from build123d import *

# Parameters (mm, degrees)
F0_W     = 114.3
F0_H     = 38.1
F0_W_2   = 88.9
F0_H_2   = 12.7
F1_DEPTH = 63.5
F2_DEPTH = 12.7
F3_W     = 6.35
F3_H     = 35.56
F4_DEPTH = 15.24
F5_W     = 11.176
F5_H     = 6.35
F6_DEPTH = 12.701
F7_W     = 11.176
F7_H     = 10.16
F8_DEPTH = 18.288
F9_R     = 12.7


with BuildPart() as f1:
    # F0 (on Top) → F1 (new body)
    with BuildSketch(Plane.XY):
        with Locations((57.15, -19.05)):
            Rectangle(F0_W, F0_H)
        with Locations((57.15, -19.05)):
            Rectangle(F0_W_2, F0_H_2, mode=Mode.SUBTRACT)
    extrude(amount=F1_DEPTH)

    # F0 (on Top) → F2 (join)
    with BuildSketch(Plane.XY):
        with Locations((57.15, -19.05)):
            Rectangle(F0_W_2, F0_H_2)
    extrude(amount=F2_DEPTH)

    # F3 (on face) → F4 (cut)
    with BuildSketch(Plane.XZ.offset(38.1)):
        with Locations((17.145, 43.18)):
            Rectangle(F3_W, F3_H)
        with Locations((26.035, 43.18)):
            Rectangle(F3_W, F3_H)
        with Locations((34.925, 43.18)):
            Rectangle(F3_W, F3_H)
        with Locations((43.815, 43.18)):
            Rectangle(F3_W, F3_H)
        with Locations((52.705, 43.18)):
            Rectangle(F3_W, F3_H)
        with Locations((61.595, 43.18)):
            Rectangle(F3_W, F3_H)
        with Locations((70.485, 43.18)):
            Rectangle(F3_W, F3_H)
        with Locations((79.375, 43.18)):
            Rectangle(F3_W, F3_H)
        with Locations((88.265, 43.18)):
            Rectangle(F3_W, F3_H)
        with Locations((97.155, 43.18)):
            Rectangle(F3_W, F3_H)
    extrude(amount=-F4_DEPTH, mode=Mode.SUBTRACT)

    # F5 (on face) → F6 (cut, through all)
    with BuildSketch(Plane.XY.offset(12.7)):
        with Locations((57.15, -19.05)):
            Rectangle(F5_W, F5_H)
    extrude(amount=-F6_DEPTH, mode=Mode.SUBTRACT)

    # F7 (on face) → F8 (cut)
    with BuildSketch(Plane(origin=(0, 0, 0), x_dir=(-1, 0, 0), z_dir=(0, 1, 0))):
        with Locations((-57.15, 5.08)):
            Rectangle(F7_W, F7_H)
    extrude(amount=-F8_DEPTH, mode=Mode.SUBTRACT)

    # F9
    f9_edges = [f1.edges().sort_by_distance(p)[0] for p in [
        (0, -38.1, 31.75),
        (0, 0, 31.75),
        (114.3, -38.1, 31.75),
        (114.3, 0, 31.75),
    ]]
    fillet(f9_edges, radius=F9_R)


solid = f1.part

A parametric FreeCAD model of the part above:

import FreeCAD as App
import Part
import Sketcher
Q = App.Units.Quantity


def edges_at(feature, points):
    """Names of the edges that pass closest to the given points."""
    edges = feature.Shape.Edges
    near = lambda p: min(range(len(edges)), key=lambda i: edges[i].distToShape(Part.Vertex(*p))[0])
    return sorted({f"Edge{near(p) + 1}" for p in points})


def add_polygon(sketch, points):
    """Adds a closed chain of lines whose ends are joined by coincident constraints."""
    first, n = sketch.GeometryCount, len(points)
    for a, b in zip(points, points[1:] + points[:1]):
        sketch.addGeometry(Part.LineSegment(App.Vector(*a, 0), App.Vector(*b, 0)), False)
    for i in range(n):
        sketch.addConstraint(Sketcher.Constraint("Coincident", first + i, 2, first + (i + 1) % n, 1))

doc = App.newDocument("Part")
body = doc.addObject("PartDesign::Body", "Body")

# Sketch on XY plane
sketch1 = body.newObject("Sketcher::SketchObject", "Sketch")
sketch1.AttachmentSupport = (doc.getObject("XY_Plane"), [""])
sketch1.MapMode = "FlatFace"
add_polygon(sketch1, [(0, 0), (0, -38.1), (114.3, -38.1), (114.3, 0)])  # lines 0-3
add_polygon(sketch1, [(101.6, -25.4), (12.7, -25.4), (12.7, -12.7), (101.6, -12.7)])  # lines 4-7
sketch1.addConstraint([
    Sketcher.Constraint("Vertical", 0),
    Sketcher.Constraint("Horizontal", 1),
    Sketcher.Constraint("Vertical", 2),
    Sketcher.Constraint("Horizontal", 3),
    Sketcher.Constraint("Horizontal", 4),
    Sketcher.Constraint("Vertical", 5),
    Sketcher.Constraint("Horizontal", 6),
    Sketcher.Constraint("Vertical", 7),
    Sketcher.Constraint("Coincident", 3, 2, -1, 1),
    Sketcher.Constraint("DistanceX", 1, 1, 1, 2, Q("4.5 in")),
    Sketcher.Constraint("DistanceX", 4, 2, 4, 1, Q("3.5 in")),
    Sketcher.Constraint("DistanceY", 0, 2, 0, 1, Q("1.5 in")),
    Sketcher.Constraint("DistanceY", 5, 1, 5, 2, Q("0.5 in")),
    Sketcher.Constraint("DistanceY", 4, 2, -1, 1, Q("1 in")),
    Sketcher.Constraint("DistanceX", -1, 1, 6, 2, Q("4 in")),
])
pad1 = body.newObject("PartDesign::Pad", "Pad")
pad1.Profile = sketch1
pad1.Length = Q("2.5 in")

# Sketch on XY plane
sketch2 = body.newObject("Sketcher::SketchObject", "Sketch001")
sketch2.AttachmentSupport = (doc.getObject("XY_Plane"), [""])
sketch2.MapMode = "FlatFace"
add_polygon(sketch2, [(12.7, -12.7), (12.7, -25.4), (101.6, -25.4), (101.6, -12.7)])  # lines 0-3
sketch2.addConstraint([
    Sketcher.Constraint("Vertical", 0),
    Sketcher.Constraint("Horizontal", 1),
    Sketcher.Constraint("Vertical", 2),
    Sketcher.Constraint("Horizontal", 3),
    Sketcher.Constraint("DistanceX", 1, 1, 1, 2, Q("3.5 in")),
    Sketcher.Constraint("DistanceY", 0, 2, 0, 1, Q("0.5 in")),
    Sketcher.Constraint("DistanceY", 0, 2, -1, 1, Q("1 in")),
    Sketcher.Constraint("DistanceX", -1, 1, 1, 2, Q("4 in")),
])
pad2 = body.newObject("PartDesign::Pad", "Pad001")
pad2.Profile = sketch2
pad2.Length = Q("0.5 in")

# Sketch on XZ plane
sketch3 = body.newObject("Sketcher::SketchObject", "Sketch002")
sketch3.AttachmentSupport = (doc.getObject("XZ_Plane"), [""])
sketch3.MapMode = "FlatFace"
sketch3.AttachmentOffset = App.Placement(App.Vector(0, 0, 1.5 * 25.4), App.Rotation())
add_polygon(sketch3, [(13.97, 60.96), (13.97, 25.4), (20.32, 25.4), (20.32, 60.96)])  # lines 0-3
add_polygon(sketch3, [(22.86, 60.96), (22.86, 25.4), (29.21, 25.4), (29.21, 60.96)])  # lines 4-7
add_polygon(sketch3, [(31.75, 60.96), (31.75, 25.4), (38.1, 25.4), (38.1, 60.96)])  # lines 8-11
add_polygon(sketch3, [(40.64, 60.96), (40.64, 25.4), (46.99, 25.4), (46.99, 60.96)])  # lines 12-15
add_polygon(sketch3, [(49.53, 60.96), (49.53, 25.4), (55.88, 25.4), (55.88, 60.96)])  # lines 16-19
add_polygon(sketch3, [(58.42, 60.96), (58.42, 25.4), (64.77, 25.4), (64.77, 60.96)])  # lines 20-23
add_polygon(sketch3, [(67.31, 60.96), (67.31, 25.4), (73.66, 25.4), (73.66, 60.96)])  # lines 24-27
add_polygon(sketch3, [(76.2, 60.96), (76.2, 25.4), (82.55, 25.4), (82.55, 60.96)])  # lines 28-31
add_polygon(sketch3, [(85.09, 60.96), (85.09, 25.4), (91.44, 25.4), (91.44, 60.96)])  # lines 32-35
add_polygon(sketch3, [(93.98, 60.96), (93.98, 25.4), (100.33, 25.4), (100.33, 60.96)])  # lines 36-39
sketch3.addConstraint([
    Sketcher.Constraint("Vertical", 0),
    Sketcher.Constraint("Horizontal", 1),
    Sketcher.Constraint("Vertical", 2),
    Sketcher.Constraint("Horizontal", 3),
    Sketcher.Constraint("Vertical", 4),
    Sketcher.Constraint("Horizontal", 5),
    Sketcher.Constraint("Vertical", 6),
    Sketcher.Constraint("Horizontal", 7),
    Sketcher.Constraint("Vertical", 8),
    Sketcher.Constraint("Horizontal", 9),
    Sketcher.Constraint("Vertical", 10),
    Sketcher.Constraint("Horizontal", 11),
    Sketcher.Constraint("Vertical", 12),
    Sketcher.Constraint("Horizontal", 13),
    Sketcher.Constraint("Vertical", 14),
    Sketcher.Constraint("Horizontal", 15),
    Sketcher.Constraint("Vertical", 16),
    Sketcher.Constraint("Horizontal", 17),
    Sketcher.Constraint("Vertical", 18),
    Sketcher.Constraint("Horizontal", 19),
    Sketcher.Constraint("Vertical", 20),
    Sketcher.Constraint("Horizontal", 21),
    Sketcher.Constraint("Vertical", 22),
    Sketcher.Constraint("Horizontal", 23),
    Sketcher.Constraint("Vertical", 24),
    Sketcher.Constraint("Horizontal", 25),
    Sketcher.Constraint("Vertical", 26),
    Sketcher.Constraint("Horizontal", 27),
    Sketcher.Constraint("Vertical", 28),
    Sketcher.Constraint("Horizontal", 29),
    Sketcher.Constraint("Vertical", 30),
    Sketcher.Constraint("Horizontal", 31),
    Sketcher.Constraint("Vertical", 32),
    Sketcher.Constraint("Horizontal", 33),
    Sketcher.Constraint("Vertical", 34),
    Sketcher.Constraint("Horizontal", 35),
    Sketcher.Constraint("Vertical", 36),
    Sketcher.Constraint("Horizontal", 37),
    Sketcher.Constraint("Vertical", 38),
    Sketcher.Constraint("Horizontal", 39),
    Sketcher.Constraint("Horizontal", 1, 2, 4, 2),
    Sketcher.Constraint("Horizontal", 3, 2, 6, 2),
    Sketcher.Constraint("Horizontal", 5, 2, 8, 2),
    Sketcher.Constraint("Horizontal", 7, 2, 10, 2),
    Sketcher.Constraint("Horizontal", 9, 2, 12, 2),
    Sketcher.Constraint("Horizontal", 11, 2, 14, 2),
    Sketcher.Constraint("Horizontal", 13, 2, 16, 2),
    Sketcher.Constraint("Horizontal", 15, 2, 18, 2),
    Sketcher.Constraint("Horizontal", 17, 2, 20, 2),
    Sketcher.Constraint("Horizontal", 19, 2, 22, 2),
    Sketcher.Constraint("Horizontal", 21, 2, 24, 2),
    Sketcher.Constraint("Horizontal", 23, 2, 26, 2),
    Sketcher.Constraint("Horizontal", 25, 2, 28, 2),
    Sketcher.Constraint("Horizontal", 27, 2, 30, 2),
    Sketcher.Constraint("Horizontal", 29, 2, 32, 2),
    Sketcher.Constraint("Horizontal", 31, 2, 34, 2),
    Sketcher.Constraint("Horizontal", 33, 2, 36, 2),
    Sketcher.Constraint("Horizontal", 35, 2, 38, 2),
    Sketcher.Constraint("Equal", 3, 5),
    Sketcher.Constraint("Equal", 7, 9),
    Sketcher.Constraint("Equal", 11, 13),
    Sketcher.Constraint("Equal", 15, 17),
    Sketcher.Constraint("Equal", 19, 21),
    Sketcher.Constraint("Equal", 23, 25),
    Sketcher.Constraint("Equal", 27, 29),
    Sketcher.Constraint("Equal", 31, 33),
    Sketcher.Constraint("Equal", 35, 37),
    Sketcher.Constraint("DistanceY", 0, 2, 0, 1, Q("1.4 in")),
    Sketcher.Constraint("DistanceY", -1, 1, 0, 2, Q("1 in")),
    Sketcher.Constraint("DistanceX", -1, 1, 28, 2, Q("3 in")),
    Sketcher.Constraint("DistanceX", 1, 1, 1, 2, Q("0.25 in")),
    Sketcher.Constraint("DistanceX", -1, 1, 1, 2, Q("0.8 in")),
    Sketcher.Constraint("DistanceX", -1, 1, 4, 2, Q("0.9 in")),
    Sketcher.Constraint("DistanceX", -1, 1, 9, 2, Q("1.5 in")),
    Sketcher.Constraint("DistanceX", -1, 1, 12, 2, Q("1.6 in")),
    Sketcher.Constraint("DistanceX", -1, 1, 17, 2, Q("2.2 in")),
    Sketcher.Constraint("DistanceX", -1, 1, 20, 2, Q("2.3 in")),
    Sketcher.Constraint("DistanceX", -1, 1, 25, 2, Q("2.9 in")),
    Sketcher.Constraint("DistanceX", -1, 1, 33, 2, Q("3.6 in")),
    Sketcher.Constraint("DistanceX", -1, 1, 36, 2, Q("3.7 in")),
])
pocket1 = body.newObject("PartDesign::Pocket", "Pocket")
pocket1.Profile = sketch3
pocket1.Length = Q("0.6 in")

# Sketch on XY plane
sketch4 = body.newObject("Sketcher::SketchObject", "Sketch003")
sketch4.AttachmentSupport = (doc.getObject("XY_Plane"), [""])
sketch4.MapMode = "FlatFace"
sketch4.AttachmentOffset = App.Placement(App.Vector(0, 0, 0.5 * 25.4), App.Rotation())
add_polygon(sketch4, [(51.562, -15.875), (51.562, -22.225), (62.738, -22.225), (62.738, -15.875)])  # lines 0-3
sketch4.addConstraint([
    Sketcher.Constraint("Vertical", 0),
    Sketcher.Constraint("Horizontal", 1),
    Sketcher.Constraint("Vertical", 2),
    Sketcher.Constraint("Horizontal", 3),
    Sketcher.Constraint("DistanceX", 1, 1, 1, 2, Q("0.44 in")),
    Sketcher.Constraint("DistanceY", 0, 2, 0, 1, Q("0.25 in")),
    Sketcher.Constraint("DistanceX", -1, 1, 0, 2, Q("2.03 in")),
    Sketcher.Constraint("DistanceY", 0, 2, -1, 1, Q("0.875 in")),
])
pocket2 = body.newObject("PartDesign::Pocket", "Pocket001")
pocket2.Profile = sketch4
pocket2.Type = "ThroughAll"

# Sketch on XZ plane
sketch5 = body.newObject("Sketcher::SketchObject", "Sketch004")
sketch5.AttachmentSupport = (doc.getObject("XZ_Plane"), [""])
sketch5.MapMode = "FlatFace"
add_polygon(sketch5, [(62.738, 10.16), (62.738, 0), (51.562, 0), (51.562, 10.16)])  # lines 0-3
sketch5.addConstraint([
    Sketcher.Constraint("Vertical", 0),
    Sketcher.Constraint("Horizontal", 1),
    Sketcher.Constraint("Vertical", 2),
    Sketcher.Constraint("Horizontal", 3),
    Sketcher.Constraint("PointOnObject", 0, 2, -1),
    Sketcher.Constraint("DistanceY", 0, 2, 0, 1, Q("0.4 in")),
    Sketcher.Constraint("DistanceX", 1, 2, 1, 1, Q("0.44 in")),
    Sketcher.Constraint("DistanceX", -1, 1, 0, 2, Q("2.47 in")),
])
pocket3 = body.newObject("PartDesign::Pocket", "Pocket002")
pocket3.Profile = sketch5
pocket3.Length = Q("0.72 in")
pocket3.Reversed = True
doc.recompute()

fillet = body.newObject("PartDesign::Fillet", "Fillet")
fillet.Base = (pocket3, edges_at(pocket3, [
    (0, -38.1, 31.75),
    (0, 0, 31.75),
    (114.3, -38.1, 31.75),
    (114.3, 0, 31.75),
]))
fillet.Radius = Q("0.5 in")

doc.recompute()
